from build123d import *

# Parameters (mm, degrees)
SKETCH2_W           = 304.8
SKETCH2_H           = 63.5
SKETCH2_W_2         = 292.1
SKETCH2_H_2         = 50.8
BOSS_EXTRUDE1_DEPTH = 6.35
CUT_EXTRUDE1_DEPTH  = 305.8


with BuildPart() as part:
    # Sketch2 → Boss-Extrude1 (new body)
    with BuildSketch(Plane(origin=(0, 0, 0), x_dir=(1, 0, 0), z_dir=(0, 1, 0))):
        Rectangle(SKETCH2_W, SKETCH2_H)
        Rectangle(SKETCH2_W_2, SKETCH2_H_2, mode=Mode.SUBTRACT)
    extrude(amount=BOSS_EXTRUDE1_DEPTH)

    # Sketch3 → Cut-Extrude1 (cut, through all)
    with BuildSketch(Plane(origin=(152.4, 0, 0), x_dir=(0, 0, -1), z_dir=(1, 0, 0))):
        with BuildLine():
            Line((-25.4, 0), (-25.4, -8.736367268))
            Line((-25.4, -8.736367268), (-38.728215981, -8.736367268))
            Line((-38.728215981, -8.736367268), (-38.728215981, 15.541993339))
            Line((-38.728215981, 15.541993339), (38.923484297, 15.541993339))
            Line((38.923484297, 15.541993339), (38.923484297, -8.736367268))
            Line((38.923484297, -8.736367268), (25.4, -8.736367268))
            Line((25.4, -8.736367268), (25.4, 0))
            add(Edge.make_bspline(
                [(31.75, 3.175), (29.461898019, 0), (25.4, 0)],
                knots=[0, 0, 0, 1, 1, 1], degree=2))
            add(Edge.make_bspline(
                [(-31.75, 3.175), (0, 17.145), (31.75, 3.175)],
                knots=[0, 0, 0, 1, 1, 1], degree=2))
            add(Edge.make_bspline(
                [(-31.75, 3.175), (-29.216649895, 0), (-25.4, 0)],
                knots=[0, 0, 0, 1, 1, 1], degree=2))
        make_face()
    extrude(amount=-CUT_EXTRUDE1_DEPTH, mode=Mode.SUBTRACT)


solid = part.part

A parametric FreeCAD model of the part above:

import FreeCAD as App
import Part
import Sketcher

V = App.Vector
Q = App.Units.Quantity

doc = App.newDocument("Part")
body = doc.addObject("PartDesign::Body", "Body")

# Sketch on XZ plane
sketch1 = body.newObject("Sketcher::SketchObject", "Sketch")
sketch1.AttachmentSupport = (doc.getObject("XZ_Plane"), [""])
sketch1.MapMode = "FlatFace"
sketch1.addGeometry([
    Part.LineSegment(V(-152, -32, 0), V(-152, 32, 0)),  # 0
    Part.LineSegment(V(-152, 32, 0), V(152, 32, 0)),  # 1
    Part.LineSegment(V(152, 32, 0), V(152, -32, 0)),  # 2
    Part.LineSegment(V(152, -32, 0), V(-152, -32, 0)),  # 3
    Part.LineSegment(V(146, 25, 0), V(-146, 25, 0)),  # 4
    Part.LineSegment(V(-146, 25, 0), V(-146, -25, 0)),  # 5
    Part.LineSegment(V(-146, -25, 0), V(146, -25, 0)),  # 6
    Part.LineSegment(V(146, -25, 0), V(146, 25, 0)),  # 7
], False)
sketch1.addConstraint([
    Sketcher.Constraint("Coincident", 0, 2, 1, 1),
    Sketcher.Constraint("Coincident", 1, 2, 2, 1),
    Sketcher.Constraint("Coincident", 2, 2, 3, 1),
    Sketcher.Constraint("Coincident", 3, 2, 0, 1),
    Sketcher.Constraint("Coincident", 4, 2, 5, 1),
    Sketcher.Constraint("Coincident", 5, 2, 6, 1),
    Sketcher.Constraint("Coincident", 6, 2, 7, 1),
    Sketcher.Constraint("Coincident", 7, 2, 4, 1),
    Sketcher.Constraint("Vertical", 0),
    Sketcher.Constraint("Horizontal", 1),
    Sketcher.Constraint("Vertical", 2),
    Sketcher.Constraint("Horizontal", 3),
    Sketcher.Constraint("Horizontal", 4),
    Sketcher.Constraint("Vertical", 5),
    Sketcher.Constraint("Horizontal", 6),
    Sketcher.Constraint("Vertical", 7),
    Sketcher.Constraint("Symmetric", 0, 2, 2, 2, -1, 1),
    Sketcher.Constraint("Symmetric", 4, 2, 6, 2, -1, 1),
    Sketcher.Constraint("DistanceX", 1, 1, 1, 2, Q("12 in")),
    Sketcher.Constraint("DistanceY", 5, 2, 5, 1, Q("2 in")),
    Sketcher.Constraint("DistanceX", 4, 2, 4, 1, Q("11.5 in")),
    Sketcher.Constraint("DistanceY", 0, 1, 0, 2, Q("2.5 in")),
])
pad1 = body.newObject("PartDesign::Pad", "Pad")
pad1.Profile = sketch1
pad1.Length = Q("0.25 in")
pad1.Reversed = True

# Sketch on YZ plane
sketch2 = body.newObject("Sketcher::SketchObject", "Sketch001")
sketch2.AttachmentSupport = (doc.getObject("YZ_Plane"), [""])
sketch2.MapMode = "FlatFace"
sketch2.AttachmentOffset = App.Placement(V(0, 0, 6 * 25.4), App.Rotation())
sketch2.addGeometry([
    Part.LineSegment(V(-8.736367, 25.4, 0), V(0, 25.4, 0)),  # 0
    Part.BSplineCurve([V(3.175, 31.75, 0), V(0, 29.21665, 0), V(0, 25.4, 0)], [3, 3], [0, 1], False, 2, [1, 1, 1], False),  # 1
    Part.BSplineCurve([V(3.175, 31.75, 0), V(17.145, 0, 0), V(3.175, -31.75, 0)], [3, 3], [0, 1], False, 2, [1, 1, 1], False),  # 2
    Part.BSplineCurve([V(3.175, -31.75, 0), V(0, -29.461898, 0), V(0, -25.4, 0)], [3, 3], [0, 1], False, 2, [1, 1, 1], False),  # 3
    Part.LineSegment(V(0, -25.4, 0), V(-8.736367, -25.4, 0)),  # 4
    Part.LineSegment(V(-8.736367, -25.4, 0), V(-8.736367, -38.923484, 0)),  # 5
    Part.LineSegment(V(-8.736367, -38.923484, 0), V(15.541993, -38.923484, 0)),  # 6
    Part.LineSegment(V(15.541993, -38.923484, 0), V(15.541993, 38.728216, 0)),  # 7
    Part.LineSegment(V(15.541993, 38.728216, 0), V(-8.736367, 38.728216, 0)),  # 8
    Part.LineSegment(V(-8.736367, 38.728216, 0), V(-8.736367, 25.4, 0)),  # 9
], False)
sketch2.addConstraint([
    Sketcher.Constraint("Block", 1),
    Sketcher.Constraint("Block", 2),
    Sketcher.Constraint("Block", 3),
    Sketcher.Constraint("Coincident", 0, 2, 1, 2),
    Sketcher.Constraint("Coincident", 3, 2, 4, 1),
    Sketcher.Constraint("Coincident", 4, 2, 5, 1),
    Sketcher.Constraint("Coincident", 5, 2, 6, 1),
    Sketcher.Constraint("Coincident", 6, 2, 7, 1),
    Sketcher.Constraint("Coincident", 7, 2, 8, 1),
    Sketcher.Constraint("Coincident", 8, 2, 9, 1),
    Sketcher.Constraint("Coincident", 9, 2, 0, 1),
    Sketcher.Constraint("Horizontal", 0),
    Sketcher.Constraint("Horizontal", 4),
    Sketcher.Constraint("Vertical", 5),
    Sketcher.Constraint("Horizontal", 6),
    Sketcher.Constraint("Vertical", 7),
    Sketcher.Constraint("Horizontal", 8),
    Sketcher.Constraint("Vertical", 9),
    Sketcher.Constraint("Vertical", 5, 2, 8, 2),
    Sketcher.Constraint("DistanceY", 7, 1, 7, 2, Q("77.6517 mm")),
    Sketcher.Constraint("DistanceX", 6, 1, 6, 2, Q("24.278361 mm")),
    Sketcher.Constraint("DistanceX", 0, 1, 0, 2, Q("8.736367 mm")),
    Sketcher.Constraint("DistanceY", 5, 2, 5, 1, Q("13.523484 mm")),
])
pocket1 = body.newObject("PartDesign::Pocket", "Pocket")
pocket1.Profile = sketch2
pocket1.Type = "ThroughAll"

doc.recompute()
